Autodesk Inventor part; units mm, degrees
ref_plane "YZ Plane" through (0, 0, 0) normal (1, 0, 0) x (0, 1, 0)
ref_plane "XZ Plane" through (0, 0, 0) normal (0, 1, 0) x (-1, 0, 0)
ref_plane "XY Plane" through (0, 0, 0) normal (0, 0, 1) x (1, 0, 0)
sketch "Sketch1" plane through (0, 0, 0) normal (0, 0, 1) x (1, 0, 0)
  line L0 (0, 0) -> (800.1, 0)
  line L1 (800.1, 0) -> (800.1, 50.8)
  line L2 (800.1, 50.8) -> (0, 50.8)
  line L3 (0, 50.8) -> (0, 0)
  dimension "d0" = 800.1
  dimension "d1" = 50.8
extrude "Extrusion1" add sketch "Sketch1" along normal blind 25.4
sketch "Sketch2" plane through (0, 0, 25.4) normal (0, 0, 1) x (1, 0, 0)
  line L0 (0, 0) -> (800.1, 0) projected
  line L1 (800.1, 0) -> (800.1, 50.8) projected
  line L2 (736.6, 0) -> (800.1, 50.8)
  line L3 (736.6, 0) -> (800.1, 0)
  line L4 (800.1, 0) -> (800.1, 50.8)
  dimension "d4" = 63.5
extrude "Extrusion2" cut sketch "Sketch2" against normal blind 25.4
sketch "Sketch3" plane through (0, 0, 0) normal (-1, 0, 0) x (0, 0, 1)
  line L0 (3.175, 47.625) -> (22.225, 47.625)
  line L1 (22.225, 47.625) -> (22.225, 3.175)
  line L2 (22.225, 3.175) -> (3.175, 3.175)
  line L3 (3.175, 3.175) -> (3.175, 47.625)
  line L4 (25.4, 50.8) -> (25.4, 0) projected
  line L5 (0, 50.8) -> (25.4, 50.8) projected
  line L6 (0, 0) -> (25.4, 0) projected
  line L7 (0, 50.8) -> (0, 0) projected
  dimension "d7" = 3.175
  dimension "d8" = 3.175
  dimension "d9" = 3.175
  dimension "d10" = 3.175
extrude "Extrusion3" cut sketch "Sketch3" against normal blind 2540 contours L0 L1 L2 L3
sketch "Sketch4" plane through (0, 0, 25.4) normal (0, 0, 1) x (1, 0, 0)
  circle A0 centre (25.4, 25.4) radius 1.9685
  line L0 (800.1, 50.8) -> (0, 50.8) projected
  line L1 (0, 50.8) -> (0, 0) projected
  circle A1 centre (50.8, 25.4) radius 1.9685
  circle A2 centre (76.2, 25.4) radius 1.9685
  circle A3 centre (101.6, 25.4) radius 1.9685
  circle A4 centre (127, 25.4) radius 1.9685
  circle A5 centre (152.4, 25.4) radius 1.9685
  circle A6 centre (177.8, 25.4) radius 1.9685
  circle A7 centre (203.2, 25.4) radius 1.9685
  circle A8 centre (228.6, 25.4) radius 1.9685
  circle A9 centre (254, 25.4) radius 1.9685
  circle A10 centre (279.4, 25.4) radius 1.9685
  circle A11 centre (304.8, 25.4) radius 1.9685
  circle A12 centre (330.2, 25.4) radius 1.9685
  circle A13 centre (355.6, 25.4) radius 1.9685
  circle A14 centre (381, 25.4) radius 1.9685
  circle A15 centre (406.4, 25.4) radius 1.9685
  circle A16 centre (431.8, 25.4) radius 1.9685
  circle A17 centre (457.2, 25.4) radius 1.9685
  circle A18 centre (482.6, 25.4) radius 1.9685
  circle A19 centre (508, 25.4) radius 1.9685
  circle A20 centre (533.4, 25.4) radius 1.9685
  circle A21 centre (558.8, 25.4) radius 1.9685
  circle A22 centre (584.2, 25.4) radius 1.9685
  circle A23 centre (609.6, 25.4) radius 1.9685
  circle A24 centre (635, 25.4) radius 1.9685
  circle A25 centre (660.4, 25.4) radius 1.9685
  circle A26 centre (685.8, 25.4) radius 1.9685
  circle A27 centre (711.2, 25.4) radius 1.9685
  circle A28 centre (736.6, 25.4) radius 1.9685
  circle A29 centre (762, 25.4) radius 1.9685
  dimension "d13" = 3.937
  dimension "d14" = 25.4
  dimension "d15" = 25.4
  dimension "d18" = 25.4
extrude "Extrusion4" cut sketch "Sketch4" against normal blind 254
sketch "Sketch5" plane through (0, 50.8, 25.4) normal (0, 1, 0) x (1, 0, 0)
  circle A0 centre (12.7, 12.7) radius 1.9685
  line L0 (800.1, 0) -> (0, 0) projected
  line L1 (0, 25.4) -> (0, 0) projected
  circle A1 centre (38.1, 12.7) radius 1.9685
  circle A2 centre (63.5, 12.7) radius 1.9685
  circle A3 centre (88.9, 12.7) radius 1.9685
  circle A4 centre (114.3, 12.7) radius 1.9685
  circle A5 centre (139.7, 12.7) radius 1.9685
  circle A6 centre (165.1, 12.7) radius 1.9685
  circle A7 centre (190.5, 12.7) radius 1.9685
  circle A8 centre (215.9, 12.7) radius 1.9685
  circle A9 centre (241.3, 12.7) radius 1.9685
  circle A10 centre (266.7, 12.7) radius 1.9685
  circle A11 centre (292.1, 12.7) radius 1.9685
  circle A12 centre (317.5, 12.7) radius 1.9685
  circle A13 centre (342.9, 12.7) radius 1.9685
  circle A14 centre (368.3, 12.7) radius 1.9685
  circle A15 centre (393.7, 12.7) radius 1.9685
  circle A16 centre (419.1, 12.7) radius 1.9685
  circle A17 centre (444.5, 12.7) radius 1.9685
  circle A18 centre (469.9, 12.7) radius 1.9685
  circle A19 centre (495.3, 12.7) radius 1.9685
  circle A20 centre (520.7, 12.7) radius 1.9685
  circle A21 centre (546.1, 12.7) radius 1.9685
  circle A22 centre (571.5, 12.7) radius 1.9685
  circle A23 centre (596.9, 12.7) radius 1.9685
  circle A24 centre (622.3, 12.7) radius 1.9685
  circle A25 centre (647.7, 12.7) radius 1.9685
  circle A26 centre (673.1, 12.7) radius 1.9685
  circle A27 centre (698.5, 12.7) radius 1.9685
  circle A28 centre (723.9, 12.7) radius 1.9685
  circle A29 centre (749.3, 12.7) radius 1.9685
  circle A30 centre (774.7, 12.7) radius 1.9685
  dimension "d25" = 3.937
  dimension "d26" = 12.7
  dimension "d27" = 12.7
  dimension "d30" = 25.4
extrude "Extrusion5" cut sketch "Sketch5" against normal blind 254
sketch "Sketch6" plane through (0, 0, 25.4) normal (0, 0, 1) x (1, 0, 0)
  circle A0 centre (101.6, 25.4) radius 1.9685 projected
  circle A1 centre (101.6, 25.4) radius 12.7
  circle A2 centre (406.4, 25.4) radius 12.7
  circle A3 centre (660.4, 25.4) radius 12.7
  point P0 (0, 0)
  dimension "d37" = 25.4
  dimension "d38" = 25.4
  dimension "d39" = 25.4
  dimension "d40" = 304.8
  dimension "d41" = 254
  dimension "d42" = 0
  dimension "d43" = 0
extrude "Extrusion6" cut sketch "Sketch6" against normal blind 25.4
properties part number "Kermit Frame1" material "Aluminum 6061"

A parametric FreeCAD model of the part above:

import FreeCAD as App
import Part
import Sketcher
from FreeCAD import Vector
Q = App.Units.Quantity


def add_polygon(sketch, points):
    """Adds a closed chain of lines whose ends are joined by coincident constraints."""
    first, n = sketch.GeometryCount, len(points)
    for a, b in zip(points, points[1:] + points[:1]):
        sketch.addGeometry(Part.LineSegment(App.Vector(*a, 0), App.Vector(*b, 0)), False)
    for i in range(n):
        sketch.addConstraint(Sketcher.Constraint("Coincident", first + i, 2, first + (i + 1) % n, 1))

doc = App.newDocument("Part")
body = doc.addObject("PartDesign::Body", "Body")

# Sketch on XY plane
sketch1 = body.newObject("Sketcher::SketchObject", "Sketch")
sketch1.AttachmentSupport = (doc.getObject("XY_Plane"), [""])
sketch1.MapMode = "FlatFace"
add_polygon(sketch1, [(0, 50.8), (0, 0), (800.1, 0), (800.1, 50.8)])  # lines 0-3
sketch1.addConstraint(Sketcher.Constraint("Vertical", 0))
sketch1.addConstraint(Sketcher.Constraint("Horizontal", 1))
sketch1.addConstraint(Sketcher.Constraint("Vertical", 2))
sketch1.addConstraint(Sketcher.Constraint("Horizontal", 3))
sketch1.addConstraint(Sketcher.Constraint("Coincident", 0, 2, -1, 1))
sketch1.addConstraint(Sketcher.Constraint("DistanceY", 0, 2, 0, 1, Q("2 in")))
sketch1.addConstraint(Sketcher.Constraint("DistanceX", 1, 1, 1, 2, Q("31.5 in")))
pad1 = body.newObject("PartDesign::Pad", "Pad")
pad1.Profile = sketch1
pad1.Length = Q("1 in")

# Sketch on XY plane
sketch2 = body.newObject("Sketcher::SketchObject", "Sketch001")
sketch2.AttachmentSupport = (doc.getObject("XY_Plane"), [""])
sketch2.MapMode = "FlatFace"
sketch2.AttachmentOffset = App.Placement(Vector(0, 0, 1 * 25.4), App.Rotation())
add_polygon(sketch2, [(800.1, 50.8), (736.6, 0), (800.1, 0)])  # lines 0-2
sketch2.addConstraint(Sketcher.Constraint("Horizontal", 1))
sketch2.addConstraint(Sketcher.Constraint("Vertical", 2))
sketch2.addConstraint(Sketcher.Constraint("PointOnObject", 0, 2, -1))
sketch2.addConstraint(Sketcher.Constraint("DistanceX", 1, 1, 1, 2, Q("2.5 in")))
sketch2.addConstraint(Sketcher.Constraint("DistanceY", 2, 1, 2, 2, Q("2 in")))
sketch2.addConstraint(Sketcher.Constraint("DistanceX", -1, 1, 0, 2, Q("29 in")))
pocket1 = body.newObject("PartDesign::Pocket", "Pocket")
pocket1.Profile = sketch2
pocket1.Length = Q("1 in")

# Sketch on YZ plane
sketch3 = body.newObject("Sketcher::SketchObject", "Sketch002")
sketch3.AttachmentSupport = (doc.getObject("YZ_Plane"), [""])
sketch3.MapMode = "FlatFace"
add_polygon(sketch3, [(47.625, 22.225), (47.625, 3.175), (3.175, 3.175), (3.175, 22.225)])  # lines 0-3
sketch3.addConstraint(Sketcher.Constraint("Vertical", 0))
sketch3.addConstraint(Sketcher.Constraint("Horizontal", 1))
sketch3.addConstraint(Sketcher.Constraint("Vertical", 2))
sketch3.addConstraint(Sketcher.Constraint("Horizontal", 3))
sketch3.addConstraint(Sketcher.Constraint("DistanceY", -1, 1, 0, 2, Q("0.125 in")))
sketch3.addConstraint(Sketcher.Constraint("DistanceX", -1, 1, 1, 2, Q("0.125 in")))
sketch3.addConstraint(Sketcher.Constraint("DistanceX", 1, 2, 1, 1, Q("1.75 in")))
sketch3.addConstraint(Sketcher.Constraint("DistanceY", 0, 2, 0, 1, Q("0.75 in")))
pocket2 = body.newObject("PartDesign::Pocket", "Pocket001")
pocket2.Profile = sketch3
pocket2.Length = Q("100 in")
pocket2.Reversed = True

# Sketch on XY plane
sketch4 = body.newObject("Sketcher::SketchObject", "Sketch003")
sketch4.AttachmentSupport = (doc.getObject("XY_Plane"), [""])
sketch4.MapMode = "FlatFace"
sketch4.AttachmentOffset = App.Placement(Vector(0, 0, 1 * 25.4), App.Rotation())
sketch4.addGeometry(Part.Circle(Vector(25.4, 25.4, 0), Vector(0, 0, 1), 1.9685), False)
sketch4.addGeometry(Part.Circle(Vector(50.8, 25.4, 0), Vector(0, 0, 1), 1.9685), False)
sketch4.addGeometry(Part.Circle(Vector(76.2, 25.4, 0), Vector(0, 0, 1), 1.9685), False)
sketch4.addGeometry(Part.Circle(Vector(101.6, 25.4, 0), Vector(0, 0, 1), 1.9685), False)
sketch4.addGeometry(Part.Circle(Vector(127, 25.4, 0), Vector(0, 0, 1), 1.9685), False)
sketch4.addGeometry(Part.Circle(Vector(152.4, 25.4, 0), Vector(0, 0, 1), 1.9685), False)
sketch4.addGeometry(Part.Circle(Vector(177.8, 25.4, 0), Vector(0, 0, 1), 1.9685), False)
sketch4.addGeometry(Part.Circle(Vector(203.2, 25.4, 0), Vector(0, 0, 1), 1.9685), False)
sketch4.addGeometry(Part.Circle(Vector(228.6, 25.4, 0), Vector(0, 0, 1), 1.9685), False)
sketch4.addGeometry(Part.Circle(Vector(254, 25.4, 0), Vector(0, 0, 1), 1.9685), False)
sketch4.addGeometry(Part.Circle(Vector(279.4, 25.4, 0), Vector(0, 0, 1), 1.9685), False)
sketch4.addGeometry(Part.Circle(Vector(304.8, 25.4, 0), Vector(0, 0, 1), 1.9685), False)
sketch4.addGeometry(Part.Circle(Vector(330.2, 25.4, 0), Vector(0, 0, 1), 1.9685), False)
sketch4.addGeometry(Part.Circle(Vector(355.6, 25.4, 0), Vector(0, 0, 1), 1.9685), False)
sketch4.addGeometry(Part.Circle(Vector(381, 25.4, 0), Vector(0, 0, 1), 1.9685), False)
sketch4.addGeometry(Part.Circle(Vector(406.4, 25.4, 0), Vector(0, 0, 1), 1.9685), False)
sketch4.addGeometry(Part.Circle(Vector(431.8, 25.4, 0), Vector(0, 0, 1), 1.9685), False)
sketch4.addGeometry(Part.Circle(Vector(457.2, 25.4, 0), Vector(0, 0, 1), 1.9685), False)
sketch4.addGeometry(Part.Circle(Vector(482.6, 25.4, 0), Vector(0, 0, 1), 1.9685), False)
sketch4.addGeometry(Part.Circle(Vector(508, 25.4, 0), Vector(0, 0, 1), 1.9685), False)
sketch4.addGeometry(Part.Circle(Vector(533.4, 25.4, 0), Vector(0, 0, 1), 1.9685), False)
sketch4.addGeometry(Part.Circle(Vector(558.8, 25.4, 0), Vector(0, 0, 1), 1.9685), False)
sketch4.addGeometry(Part.Circle(Vector(584.2, 25.4, 0), Vector(0, 0, 1), 1.9685), False)
sketch4.addGeometry(Part.Circle(Vector(609.6, 25.4, 0), Vector(0, 0, 1), 1.9685), False)
sketch4.addGeometry(Part.Circle(Vector(635, 25.4, 0), Vector(0, 0, 1), 1.9685), False)
sketch4.addGeometry(Part.Circle(Vector(660.4, 25.4, 0), Vector(0, 0, 1), 1.9685), False)
sketch4.addGeometry(Part.Circle(Vector(685.8, 25.4, 0), Vector(0, 0, 1), 1.9685), False)
sketch4.addGeometry(Part.Circle(Vector(711.2, 25.4, 0), Vector(0, 0, 1), 1.9685), False)
sketch4.addGeometry(Part.Circle(Vector(736.6, 25.4, 0), Vector(0, 0, 1), 1.9685), False)
sketch4.addGeometry(Part.Circle(Vector(762, 25.4, 0), Vector(0, 0, 1), 1.9685), False)
sketch4.addConstraint(Sketcher.Constraint("Equal", 0, 1))
sketch4.addConstraint(Sketcher.Constraint("Equal", 1, 2))
sketch4.addConstraint(Sketcher.Constraint("Equal", 2, 3))
sketch4.addConstraint(Sketcher.Constraint("Equal", 3, 4))
sketch4.addConstraint(Sketcher.Constraint("Equal", 4, 5))
sketch4.addConstraint(Sketcher.Constraint("Equal", 5, 6))
sketch4.addConstraint(Sketcher.Constraint("Equal", 6, 7))
sketch4.addConstraint(Sketcher.Constraint("Equal", 7, 8))
sketch4.addConstraint(Sketcher.Constraint("Equal", 8, 9))
sketch4.addConstraint(Sketcher.Constraint("Equal", 9, 10))
sketch4.addConstraint(Sketcher.Constraint("Equal", 10, 11))
sketch4.addConstraint(Sketcher.Constraint("Equal", 11, 12))
sketch4.addConstraint(Sketcher.Constraint("Equal", 12, 13))
sketch4.addConstraint(Sketcher.Constraint("Equal", 13, 14))
sketch4.addConstraint(Sketcher.Constraint("Equal", 14, 15))
sketch4.addConstraint(Sketcher.Constraint("Equal", 15, 16))
sketch4.addConstraint(Sketcher.Constraint("Equal", 16, 17))
sketch4.addConstraint(Sketcher.Constraint("Equal", 17, 18))
sketch4.addConstraint(Sketcher.Constraint("Equal", 18, 19))
sketch4.addConstraint(Sketcher.Constraint("Equal", 19, 20))
sketch4.addConstraint(Sketcher.Constraint("Equal", 20, 21))
sketch4.addConstraint(Sketcher.Constraint("Equal", 21, 22))
sketch4.addConstraint(Sketcher.Constraint("Equal", 22, 23))
sketch4.addConstraint(Sketcher.Constraint("Equal", 23, 24))
sketch4.addConstraint(Sketcher.Constraint("Equal", 24, 25))
sketch4.addConstraint(Sketcher.Constraint("Equal", 25, 26))
sketch4.addConstraint(Sketcher.Constraint("Equal", 26, 27))
sketch4.addConstraint(Sketcher.Constraint("Equal", 27, 28))
sketch4.addConstraint(Sketcher.Constraint("Equal", 28, 29))
sketch4.addConstraint(Sketcher.Constraint("Horizontal", 0, 3, 1, 3))
sketch4.addConstraint(Sketcher.Constraint("Horizontal", 1, 3, 2, 3))
sketch4.addConstraint(Sketcher.Constraint("Horizontal", 2, 3, 3, 3))
sketch4.addConstraint(Sketcher.Constraint("Horizontal", 3, 3, 4, 3))
sketch4.addConstraint(Sketcher.Constraint("Horizontal", 4, 3, 5, 3))
sketch4.addConstraint(Sketcher.Constraint("Horizontal", 5, 3, 6, 3))
sketch4.addConstraint(Sketcher.Constraint("Horizontal", 6, 3, 7, 3))
sketch4.addConstraint(Sketcher.Constraint("Horizontal", 7, 3, 8, 3))
sketch4.addConstraint(Sketcher.Constraint("Horizontal", 8, 3, 9, 3))
sketch4.addConstraint(Sketcher.Constraint("Horizontal", 9, 3, 10, 3))
sketch4.addConstraint(Sketcher.Constraint("Horizontal", 10, 3, 11, 3))
sketch4.addConstraint(Sketcher.Constraint("Horizontal", 11, 3, 12, 3))
sketch4.addConstraint(Sketcher.Constraint("Horizontal", 12, 3, 13, 3))
sketch4.addConstraint(Sketcher.Constraint("Horizontal", 13, 3, 14, 3))
sketch4.addConstraint(Sketcher.Constraint("Horizontal", 14, 3, 15, 3))
sketch4.addConstraint(Sketcher.Constraint("Horizontal", 15, 3, 16, 3))
sketch4.addConstraint(Sketcher.Constraint("Horizontal", 16, 3, 17, 3))
sketch4.addConstraint(Sketcher.Constraint("Horizontal", 17, 3, 18, 3))
sketch4.addConstraint(Sketcher.Constraint("Horizontal", 18, 3, 19, 3))
sketch4.addConstraint(Sketcher.Constraint("Horizontal", 19, 3, 20, 3))
sketch4.addConstraint(Sketcher.Constraint("Horizontal", 20, 3, 21, 3))
sketch4.addConstraint(Sketcher.Constraint("Horizontal", 21, 3, 22, 3))
sketch4.addConstraint(Sketcher.Constraint("Horizontal", 22, 3, 23, 3))
sketch4.addConstraint(Sketcher.Constraint("Horizontal", 23, 3, 24, 3))
sketch4.addConstraint(Sketcher.Constraint("Horizontal", 24, 3, 25, 3))
sketch4.addConstraint(Sketcher.Constraint("Horizontal", 25, 3, 26, 3))
sketch4.addConstraint(Sketcher.Constraint("Horizontal", 26, 3, 27, 3))
sketch4.addConstraint(Sketcher.Constraint("Horizontal", 27, 3, 28, 3))
sketch4.addConstraint(Sketcher.Constraint("Horizontal", 28, 3, 29, 3))
sketch4.addConstraint(Sketcher.Constraint("Diameter", 0, Q("0.155 in")))
sketch4.addConstraint(Sketcher.Constraint("DistanceX", -1, 1, 0, 3, Q("1 in")))
sketch4.addConstraint(Sketcher.Constraint("DistanceY", -1, 1, 0, 3, Q("1 in")))
sketch4.addConstraint(Sketcher.Constraint("DistanceX", 0, 3, 1, 3, Q("1 in")))
sketch4.addConstraint(Sketcher.Constraint("DistanceX", 1, 3, 2, 3, Q("1 in")))
sketch4.addConstraint(Sketcher.Constraint("DistanceX", 2, 3, 3, 3, Q("1 in")))
sketch4.addConstraint(Sketcher.Constraint("DistanceX", 3, 3, 4, 3, Q("1 in")))
sketch4.addConstraint(Sketcher.Constraint("DistanceX", 4, 3, 5, 3, Q("1 in")))
sketch4.addConstraint(Sketcher.Constraint("DistanceX", 5, 3, 6, 3, Q("1 in")))
sketch4.addConstraint(Sketcher.Constraint("DistanceX", 6, 3, 7, 3, Q("1 in")))
sketch4.addConstraint(Sketcher.Constraint("DistanceX", 7, 3, 8, 3, Q("1 in")))
sketch4.addConstraint(Sketcher.Constraint("DistanceX", 8, 3, 9, 3, Q("1 in")))
sketch4.addConstraint(Sketcher.Constraint("DistanceX", 9, 3, 10, 3, Q("1 in")))
sketch4.addConstraint(Sketcher.Constraint("DistanceX", 10, 3, 11, 3, Q("1 in")))
sketch4.addConstraint(Sketcher.Constraint("DistanceX", 11, 3, 12, 3, Q("1 in")))
sketch4.addConstraint(Sketcher.Constraint("DistanceX", 12, 3, 13, 3, Q("1 in")))
sketch4.addConstraint(Sketcher.Constraint("DistanceX", 13, 3, 14, 3, Q("1 in")))
sketch4.addConstraint(Sketcher.Constraint("DistanceX", 14, 3, 15, 3, Q("1 in")))
sketch4.addConstraint(Sketcher.Constraint("DistanceX", 15, 3, 16, 3, Q("1 in")))
sketch4.addConstraint(Sketcher.Constraint("DistanceX", 16, 3, 17, 3, Q("1 in")))
sketch4.addConstraint(Sketcher.Constraint("DistanceX", 17, 3, 18, 3, Q("1 in")))
sketch4.addConstraint(Sketcher.Constraint("DistanceX", 18, 3, 19, 3, Q("1 in")))
sketch4.addConstraint(Sketcher.Constraint("DistanceX", 19, 3, 20, 3, Q("1 in")))
sketch4.addConstraint(Sketcher.Constraint("DistanceX", 20, 3, 21, 3, Q("1 in")))
sketch4.addConstraint(Sketcher.Constraint("DistanceX", 21, 3, 22, 3, Q("1 in")))
sketch4.addConstraint(Sketcher.Constraint("DistanceX", 22, 3, 23, 3, Q("1 in")))
sketch4.addConstraint(Sketcher.Constraint("DistanceX", 23, 3, 24, 3, Q("1 in")))
sketch4.addConstraint(Sketcher.Constraint("DistanceX", 24, 3, 25, 3, Q("1 in")))
sketch4.addConstraint(Sketcher.Constraint("DistanceX", 25, 3, 26, 3, Q("1 in")))
sketch4.addConstraint(Sketcher.Constraint("DistanceX", 26, 3, 27, 3, Q("1 in")))
sketch4.addConstraint(Sketcher.Constraint("DistanceX", 27, 3, 28, 3, Q("1 in")))
sketch4.addConstraint(Sketcher.Constraint("DistanceX", 28, 3, 29, 3, Q("1 in")))
pocket3 = body.newObject("PartDesign::Pocket", "Pocket002")
pocket3.Profile = sketch4
pocket3.Length = Q("10 in")

# Sketch on XZ plane
sketch5 = body.newObject("Sketcher::SketchObject", "Sketch004")
sketch5.AttachmentSupport = (doc.getObject("XZ_Plane"), [""])
sketch5.MapMode = "FlatFace"
sketch5.AttachmentOffset = App.Placement(Vector(0, 0, -2 * 25.4), App.Rotation())
sketch5.addGeometry(Part.Circle(Vector(12.7, 12.7, 0), Vector(0, 0, 1), 1.9685), False)
sketch5.addGeometry(Part.Circle(Vector(38.1, 12.7, 0), Vector(0, 0, 1), 1.9685), False)
sketch5.addGeometry(Part.Circle(Vector(63.5, 12.7, 0), Vector(0, 0, 1), 1.9685), False)
sketch5.addGeometry(Part.Circle(Vector(88.9, 12.7, 0), Vector(0, 0, 1), 1.9685), False)
sketch5.addGeometry(Part.Circle(Vector(114.3, 12.7, 0), Vector(0, 0, 1), 1.9685), False)
sketch5.addGeometry(Part.Circle(Vector(139.7, 12.7, 0), Vector(0, 0, 1), 1.9685), False)
sketch5.addGeometry(Part.Circle(Vector(165.1, 12.7, 0), Vector(0, 0, 1), 1.9685), False)
sketch5.addGeometry(Part.Circle(Vector(190.5, 12.7, 0), Vector(0, 0, 1), 1.9685), False)
sketch5.addGeometry(Part.Circle(Vector(215.9, 12.7, 0), Vector(0, 0, 1), 1.9685), False)
sketch5.addGeometry(Part.Circle(Vector(241.3, 12.7, 0), Vector(0, 0, 1), 1.9685), False)
sketch5.addGeometry(Part.Circle(Vector(266.7, 12.7, 0), Vector(0, 0, 1), 1.9685), False)
sketch5.addGeometry(Part.Circle(Vector(292.1, 12.7, 0), Vector(0, 0, 1), 1.9685), False)
sketch5.addGeometry(Part.Circle(Vector(317.5, 12.7, 0), Vector(0, 0, 1), 1.9685), False)
sketch5.addGeometry(Part.Circle(Vector(342.9, 12.7, 0), Vector(0, 0, 1), 1.9685), False)
sketch5.addGeometry(Part.Circle(Vector(368.3, 12.7, 0), Vector(0, 0, 1), 1.9685), False)
sketch5.addGeometry(Part.Circle(Vector(393.7, 12.7, 0), Vector(0, 0, 1), 1.9685), False)
sketch5.addGeometry(Part.Circle(Vector(419.1, 12.7, 0), Vector(0, 0, 1), 1.9685), False)
sketch5.addGeometry(Part.Circle(Vector(444.5, 12.7, 0), Vector(0, 0, 1), 1.9685), False)
sketch5.addGeometry(Part.Circle(Vector(469.9, 12.7, 0), Vector(0, 0, 1), 1.9685), False)
sketch5.addGeometry(Part.Circle(Vector(495.3, 12.7, 0), Vector(0, 0, 1), 1.9685), False)
sketch5.addGeometry(Part.Circle(Vector(520.7, 12.7, 0), Vector(0, 0, 1), 1.9685), False)
sketch5.addGeometry(Part.Circle(Vector(546.1, 12.7, 0), Vector(0, 0, 1), 1.9685), False)
sketch5.addGeometry(Part.Circle(Vector(571.5, 12.7, 0), Vector(0, 0, 1), 1.9685), False)
sketch5.addGeometry(Part.Circle(Vector(596.9, 12.7, 0), Vector(0, 0, 1), 1.9685), False)
sketch5.addGeometry(Part.Circle(Vector(622.3, 12.7, 0), Vector(0, 0, 1), 1.9685), False)
sketch5.addGeometry(Part.Circle(Vector(647.7, 12.7, 0), Vector(0, 0, 1), 1.9685), False)
sketch5.addGeometry(Part.Circle(Vector(673.1, 12.7, 0), Vector(0, 0, 1), 1.9685), False)
sketch5.addGeometry(Part.Circle(Vector(698.5, 12.7, 0), Vector(0, 0, 1), 1.9685), False)
sketch5.addGeometry(Part.Circle(Vector(723.9, 12.7, 0), Vector(0, 0, 1), 1.9685), False)
sketch5.addGeometry(Part.Circle(Vector(749.3, 12.7, 0), Vector(0, 0, 1), 1.9685), False)
sketch5.addGeometry(Part.Circle(Vector(774.7, 12.7, 0), Vector(0, 0, 1), 1.9685), False)
sketch5.addConstraint(Sketcher.Constraint("Equal", 0, 1))
sketch5.addConstraint(Sketcher.Constraint("Equal", 1, 2))
sketch5.addConstraint(Sketcher.Constraint("Equal", 2, 3))
sketch5.addConstraint(Sketcher.Constraint("Equal", 3, 4))
sketch5.addConstraint(Sketcher.Constraint("Equal", 4, 5))
sketch5.addConstraint(Sketcher.Constraint("Equal", 5, 6))
sketch5.addConstraint(Sketcher.Constraint("Equal", 6, 7))
sketch5.addConstraint(Sketcher.Constraint("Equal", 7, 8))
sketch5.addConstraint(Sketcher.Constraint("Equal", 8, 9))
sketch5.addConstraint(Sketcher.Constraint("Equal", 9, 10))
sketch5.addConstraint(Sketcher.Constraint("Equal", 10, 11))
sketch5.addConstraint(Sketcher.Constraint("Equal", 11, 12))
sketch5.addConstraint(Sketcher.Constraint("Equal", 12, 13))
sketch5.addConstraint(Sketcher.Constraint("Equal", 13, 14))
sketch5.addConstraint(Sketcher.Constraint("Equal", 14, 15))
sketch5.addConstraint(Sketcher.Constraint("Equal", 15, 16))
sketch5.addConstraint(Sketcher.Constraint("Equal", 16, 17))
sketch5.addConstraint(Sketcher.Constraint("Equal", 17, 18))
sketch5.addConstraint(Sketcher.Constraint("Equal", 18, 19))
sketch5.addConstraint(Sketcher.Constraint("Equal", 19, 20))
sketch5.addConstraint(Sketcher.Constraint("Equal", 20, 21))
sketch5.addConstraint(Sketcher.Constraint("Equal", 21, 22))
sketch5.addConstraint(Sketcher.Constraint("Equal", 22, 23))
sketch5.addConstraint(Sketcher.Constraint("Equal", 23, 24))
sketch5.addConstraint(Sketcher.Constraint("Equal", 24, 25))
sketch5.addConstraint(Sketcher.Constraint("Equal", 25, 26))
sketch5.addConstraint(Sketcher.Constraint("Equal", 26, 27))
sketch5.addConstraint(Sketcher.Constraint("Equal", 27, 28))
sketch5.addConstraint(Sketcher.Constraint("Equal", 28, 29))
sketch5.addConstraint(Sketcher.Constraint("Equal", 29, 30))
sketch5.addConstraint(Sketcher.Constraint("Horizontal", 0, 3, 1, 3))
sketch5.addConstraint(Sketcher.Constraint("Horizontal", 1, 3, 2, 3))
sketch5.addConstraint(Sketcher.Constraint("Horizontal", 2, 3, 3, 3))
sketch5.addConstraint(Sketcher.Constraint("Horizontal", 3, 3, 4, 3))
sketch5.addConstraint(Sketcher.Constraint("Horizontal", 4, 3, 5, 3))
sketch5.addConstraint(Sketcher.Constraint("Horizontal", 5, 3, 6, 3))
sketch5.addConstraint(Sketcher.Constraint("Horizontal", 6, 3, 7, 3))
sketch5.addConstraint(Sketcher.Constraint("Horizontal", 7, 3, 8, 3))
sketch5.addConstraint(Sketcher.Constraint("Horizontal", 8, 3, 9, 3))
sketch5.addConstraint(Sketcher.Constraint("Horizontal", 9, 3, 10, 3))
sketch5.addConstraint(Sketcher.Constraint("Horizontal", 10, 3, 11, 3))
sketch5.addConstraint(Sketcher.Constraint("Horizontal", 11, 3, 12, 3))
sketch5.addConstraint(Sketcher.Constraint("Horizontal", 12, 3, 13, 3))
sketch5.addConstraint(Sketcher.Constraint("Horizontal", 13, 3, 14, 3))
sketch5.addConstraint(Sketcher.Constraint("Horizontal", 14, 3, 15, 3))
sketch5.addConstraint(Sketcher.Constraint("Horizontal", 15, 3, 16, 3))
sketch5.addConstraint(Sketcher.Constraint("Horizontal", 16, 3, 17, 3))
sketch5.addConstraint(Sketcher.Constraint("Horizontal", 17, 3, 18, 3))
sketch5.addConstraint(Sketcher.Constraint("Horizontal", 18, 3, 19, 3))
sketch5.addConstraint(Sketcher.Constraint("Horizontal", 19, 3, 20, 3))
sketch5.addConstraint(Sketcher.Constraint("Horizontal", 20, 3, 21, 3))
sketch5.addConstraint(Sketcher.Constraint("Horizontal", 21, 3, 22, 3))
sketch5.addConstraint(Sketcher.Constraint("Horizontal", 22, 3, 23, 3))
sketch5.addConstraint(Sketcher.Constraint("Horizontal", 23, 3, 24, 3))
sketch5.addConstraint(Sketcher.Constraint("Horizontal", 24, 3, 25, 3))
sketch5.addConstraint(Sketcher.Constraint("Horizontal", 25, 3, 26, 3))
sketch5.addConstraint(Sketcher.Constraint("Horizontal", 26, 3, 27, 3))
sketch5.addConstraint(Sketcher.Constraint("Horizontal", 27, 3, 28, 3))
sketch5.addConstraint(Sketcher.Constraint("Horizontal", 28, 3, 29, 3))
sketch5.addConstraint(Sketcher.Constraint("Horizontal", 29, 3, 30, 3))
sketch5.addConstraint(Sketcher.Constraint("Diameter", 0, Q("0.155 in")))
sketch5.addConstraint(Sketcher.Constraint("DistanceX", 0, 3, 1, 3, Q("1 in")))
sketch5.addConstraint(Sketcher.Constraint("DistanceX", 1, 3, 2, 3, Q("1 in")))
sketch5.addConstraint(Sketcher.Constraint("DistanceX", 2, 3, 3, 3, Q("1 in")))
sketch5.addConstraint(Sketcher.Constraint("DistanceX", 3, 3, 4, 3, Q("1 in")))
sketch5.addConstraint(Sketcher.Constraint("DistanceX", 4, 3, 5, 3, Q("1 in")))
sketch5.addConstraint(Sketcher.Constraint("DistanceX", 5, 3, 6, 3, Q("1 in")))
sketch5.addConstraint(Sketcher.Constraint("DistanceX", 6, 3, 7, 3, Q("1 in")))
sketch5.addConstraint(Sketcher.Constraint("DistanceX", 7, 3, 8, 3, Q("1 in")))
sketch5.addConstraint(Sketcher.Constraint("DistanceX", 8, 3, 9, 3, Q("1 in")))
sketch5.addConstraint(Sketcher.Constraint("DistanceX", 9, 3, 10, 3, Q("1 in")))
sketch5.addConstraint(Sketcher.Constraint("DistanceX", 10, 3, 11, 3, Q("1 in")))
sketch5.addConstraint(Sketcher.Constraint("DistanceX", 11, 3, 12, 3, Q("1 in")))
sketch5.addConstraint(Sketcher.Constraint("DistanceX", 12, 3, 13, 3, Q("1 in")))
sketch5.addConstraint(Sketcher.Constraint("DistanceX", 13, 3, 14, 3, Q("1 in")))
sketch5.addConstraint(Sketcher.Constraint("DistanceX", 14, 3, 15, 3, Q("1 in")))
sketch5.addConstraint(Sketcher.Constraint("DistanceX", 15, 3, 16, 3, Q("1 in")))
sketch5.addConstraint(Sketcher.Constraint("DistanceX", 16, 3, 17, 3, Q("1 in")))
sketch5.addConstraint(Sketcher.Constraint("DistanceX", 17, 3, 18, 3, Q("1 in")))
sketch5.addConstraint(Sketcher.Constraint("DistanceX", 18, 3, 19, 3, Q("1 in")))
sketch5.addConstraint(Sketcher.Constraint("DistanceX", 19, 3, 20, 3, Q("1 in")))
sketch5.addConstraint(Sketcher.Constraint("DistanceX", 20, 3, 21, 3, Q("1 in")))
sketch5.addConstraint(Sketcher.Constraint("DistanceX", 21, 3, 22, 3, Q("1 in")))
sketch5.addConstraint(Sketcher.Constraint("DistanceX", 22, 3, 23, 3, Q("1 in")))
sketch5.addConstraint(Sketcher.Constraint("DistanceX", 23, 3, 24, 3, Q("1 in")))
sketch5.addConstraint(Sketcher.Constraint("DistanceX", 24, 3, 25, 3, Q("1 in")))
sketch5.addConstraint(Sketcher.Constraint("DistanceX", 25, 3, 26, 3, Q("1 in")))
sketch5.addConstraint(Sketcher.Constraint("DistanceX", 26, 3, 27, 3, Q("1 in")))
sketch5.addConstraint(Sketcher.Constraint("DistanceX", 27, 3, 28, 3, Q("1 in")))
sketch5.addConstraint(Sketcher.Constraint("DistanceX", 28, 3, 29, 3, Q("1 in")))
sketch5.addConstraint(Sketcher.Constraint("DistanceX", 29, 3, 30, 3, Q("1 in")))
sketch5.addConstraint(Sketcher.Constraint("DistanceX", -1, 1, 0, 3, Q("0.5 in")))
sketch5.addConstraint(Sketcher.Constraint("DistanceY", -1, 1, 0, 3, Q("0.5 in")))
pocket4 = body.newObject("PartDesign::Pocket", "Pocket003")
pocket4.Profile = sketch5
pocket4.Length = Q("10 in")
pocket4.Reversed = True

# Sketch on XY plane
sketch6 = body.newObject("Sketcher::SketchObject", "Sketch005")
sketch6.AttachmentSupport = (doc.getObject("XY_Plane"), [""])
sketch6.MapMode = "FlatFace"
sketch6.AttachmentOffset = App.Placement(Vector(0, 0, 1 * 25.4), App.Rotation())
sketch6.addGeometry(Part.Circle(Vector(101.6, 25.4, 0), Vector(0, 0, 1), 12.7), False)
sketch6.addGeometry(Part.Circle(Vector(101.6, 25.4, 0), Vector(0, 0, 1), 1.9685), False)
sketch6.addGeometry(Part.Circle(Vector(406.4, 25.4, 0), Vector(0, 0, 1), 12.7), False)
sketch6.addGeometry(Part.Circle(Vector(660.4, 25.4, 0), Vector(0, 0, 1), 12.7), False)
sketch6.addConstraint(Sketcher.Constraint("Coincident", 1, 3, 0, 3))
sketch6.addConstraint(Sketcher.Constraint("Equal", 0, 2))
sketch6.addConstraint(Sketcher.Constraint("Equal", 2, 3))
sketch6.addConstraint(Sketcher.Constraint("Horizontal", 1, 3, 2, 3))
sketch6.addConstraint(Sketcher.Constraint("Horizontal", 2, 3, 3, 3))
sketch6.addConstraint(Sketcher.Constraint("Diameter", 0, Q("1 in")))
sketch6.addConstraint(Sketcher.Constraint("DistanceY", -1, 1, 0, 3, Q("1 in")))
sketch6.addConstraint(Sketcher.Constraint("DistanceX", 0, 3, 2, 3, Q("12 in")))
sketch6.addConstraint(Sketcher.Constraint("DistanceX", 2, 3, 3, 3, Q("10 in")))
sketch6.addConstraint(Sketcher.Constraint("Diameter", 1, Q("0.155 in")))
sketch6.addConstraint(Sketcher.Constraint("DistanceX", -1, 1, 0, 3, Q("4 in")))
pocket5 = body.newObject("PartDesign::Pocket", "Pocket004")
pocket5.Profile = sketch6
pocket5.Length = Q("1 in")

doc.recompute()
